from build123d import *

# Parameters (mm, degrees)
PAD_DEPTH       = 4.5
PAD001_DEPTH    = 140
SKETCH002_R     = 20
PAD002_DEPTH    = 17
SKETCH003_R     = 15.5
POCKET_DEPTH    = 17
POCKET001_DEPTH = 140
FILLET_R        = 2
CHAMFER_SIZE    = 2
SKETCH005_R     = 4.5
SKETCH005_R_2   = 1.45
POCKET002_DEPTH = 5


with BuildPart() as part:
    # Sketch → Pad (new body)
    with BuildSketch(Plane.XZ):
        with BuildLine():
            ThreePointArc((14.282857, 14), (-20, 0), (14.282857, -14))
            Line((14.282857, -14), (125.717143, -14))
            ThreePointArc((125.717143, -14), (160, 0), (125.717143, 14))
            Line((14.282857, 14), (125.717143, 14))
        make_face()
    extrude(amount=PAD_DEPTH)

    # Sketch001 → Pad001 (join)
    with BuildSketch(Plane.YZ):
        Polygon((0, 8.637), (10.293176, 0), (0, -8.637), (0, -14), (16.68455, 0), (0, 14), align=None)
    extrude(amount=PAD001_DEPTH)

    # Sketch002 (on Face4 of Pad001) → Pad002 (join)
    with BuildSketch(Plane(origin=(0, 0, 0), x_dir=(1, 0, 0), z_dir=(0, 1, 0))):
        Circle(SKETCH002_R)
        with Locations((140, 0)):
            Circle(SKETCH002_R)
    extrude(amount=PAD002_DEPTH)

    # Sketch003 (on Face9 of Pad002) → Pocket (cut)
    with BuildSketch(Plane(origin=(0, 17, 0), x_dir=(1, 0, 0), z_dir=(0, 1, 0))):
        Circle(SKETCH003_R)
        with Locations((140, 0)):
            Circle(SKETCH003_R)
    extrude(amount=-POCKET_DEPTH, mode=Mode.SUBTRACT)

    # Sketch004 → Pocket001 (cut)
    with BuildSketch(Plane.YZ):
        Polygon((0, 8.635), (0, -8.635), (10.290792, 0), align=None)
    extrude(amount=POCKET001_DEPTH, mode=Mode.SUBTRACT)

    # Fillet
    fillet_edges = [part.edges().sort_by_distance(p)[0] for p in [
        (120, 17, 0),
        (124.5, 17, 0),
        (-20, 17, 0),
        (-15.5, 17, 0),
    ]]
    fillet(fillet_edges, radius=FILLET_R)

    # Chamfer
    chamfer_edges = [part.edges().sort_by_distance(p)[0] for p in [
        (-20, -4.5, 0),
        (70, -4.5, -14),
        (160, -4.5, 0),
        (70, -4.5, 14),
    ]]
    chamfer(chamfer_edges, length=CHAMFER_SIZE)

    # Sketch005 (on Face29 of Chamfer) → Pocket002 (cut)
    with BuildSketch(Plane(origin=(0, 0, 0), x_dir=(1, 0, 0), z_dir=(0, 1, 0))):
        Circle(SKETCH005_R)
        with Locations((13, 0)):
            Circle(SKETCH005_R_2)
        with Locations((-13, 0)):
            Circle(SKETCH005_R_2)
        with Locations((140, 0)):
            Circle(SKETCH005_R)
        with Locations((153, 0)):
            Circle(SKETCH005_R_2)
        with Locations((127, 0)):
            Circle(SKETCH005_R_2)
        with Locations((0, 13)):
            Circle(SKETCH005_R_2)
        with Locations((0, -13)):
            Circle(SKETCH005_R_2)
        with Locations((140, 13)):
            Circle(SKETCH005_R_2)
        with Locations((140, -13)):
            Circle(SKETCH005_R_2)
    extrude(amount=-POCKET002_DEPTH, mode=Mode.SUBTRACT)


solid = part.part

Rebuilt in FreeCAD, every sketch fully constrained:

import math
import FreeCAD as App
import Part
import Sketcher
from FreeCAD import Vector
Q = App.Units.Quantity


def edges_at(feature, points):
    """Names of the edges that pass closest to the given points."""
    edges = feature.Shape.Edges
    near = lambda p: min(range(len(edges)), key=lambda i: edges[i].distToShape(Part.Vertex(*p))[0])
    return sorted({f"Edge{near(p) + 1}" for p in points})

doc = App.newDocument("Part")
body = doc.addObject("PartDesign::Body", "Body")

sketch1 = body.newObject("Sketcher::SketchObject", "Sketch")
sketch1.AttachmentSupport = (doc.getObject("XZ_Plane"), [""])
sketch1.MapMode = "FlatFace"
sketch1.addGeometry(Part.ArcOfCircle(Part.Circle(Vector(0, 0, 0), Vector(0, 0, 1), 20), math.radians(44.427004), math.radians(315.572996)), False)
sketch1.addGeometry(Part.LineSegment(Vector(14.282857, -14, 0), Vector(125.717143, -14, 0)), False)
sketch1.addGeometry(Part.ArcOfCircle(Part.Circle(Vector(140, 0, 0), Vector(0, 0, 1), 20), math.radians(-135.572996), math.radians(135.572996)), False)
sketch1.addGeometry(Part.LineSegment(Vector(125.717143, 14, 0), Vector(14.282857, 14, 0)), False)
sketch1.addConstraint(Sketcher.Constraint("Coincident", 0, 2, 1, 1))
sketch1.addConstraint(Sketcher.Constraint("Coincident", 1, 2, 2, 1))
sketch1.addConstraint(Sketcher.Constraint("Coincident", 2, 2, 3, 1))
sketch1.addConstraint(Sketcher.Constraint("Coincident", 3, 2, 0, 1))
sketch1.addConstraint(Sketcher.Constraint("Horizontal", 1))
sketch1.addConstraint(Sketcher.Constraint("Horizontal", 3))
sketch1.addConstraint(Sketcher.Constraint("Coincident", 0, 3, -1, 1))
sketch1.addConstraint(Sketcher.Constraint("Equal", 0, 2))
sketch1.addConstraint(Sketcher.Constraint("Symmetric", 1, 2, 2, 2, -1))
sketch1.addConstraint(Sketcher.Constraint("Radius", 0, Q("20 mm")))
sketch1.addConstraint(Sketcher.Constraint("DistanceX", -1, 1, 2, 3, Q("140 mm")))
sketch1.addConstraint(Sketcher.Constraint("DistanceY", 0, 2, -1, 1, Q("14 mm")))
pad1 = body.newObject("PartDesign::Pad", "Pad")
pad1.Profile = sketch1
pad1.Length = 4.5

sketch2 = body.newObject("Sketcher::SketchObject", "Sketch001")
sketch2.AttachmentSupport = (doc.getObject("YZ_Plane"), [""])
sketch2.MapMode = "FlatFace"
sketch2.addGeometry(Part.LineSegment(Vector(0, 8.637, 0), Vector(10.293176, 0, 0)), False)
sketch2.addGeometry(Part.LineSegment(Vector(10.293176, 0, 0), Vector(0, -8.637, 0)), False)
sketch2.addGeometry(Part.LineSegment(Vector(0, -8.637, 0), Vector(0, -14, 0)), False)
sketch2.addGeometry(Part.LineSegment(Vector(0, -14, 0), Vector(16.68455, 0, 0)), False)
sketch2.addGeometry(Part.LineSegment(Vector(16.68455, 0, 0), Vector(0, 14, 0)), False)
sketch2.addGeometry(Part.LineSegment(Vector(0, 14, 0), Vector(0, 8.637, 0)), False)
sketch2.addConstraint(Sketcher.Constraint("Coincident", 0, 2, 1, 1))
sketch2.addConstraint(Sketcher.Constraint("Coincident", 1, 2, 2, 1))
sketch2.addConstraint(Sketcher.Constraint("Coincident", 2, 2, 3, 1))
sketch2.addConstraint(Sketcher.Constraint("Coincident", 3, 2, 4, 1))
sketch2.addConstraint(Sketcher.Constraint("Coincident", 4, 2, 5, 1))
sketch2.addConstraint(Sketcher.Constraint("Coincident", 5, 2, 0, 1))
sketch2.addConstraint(Sketcher.Constraint("Vertical", 2))
sketch2.addConstraint(Sketcher.Constraint("Vertical", 5))
sketch2.addConstraint(Sketcher.Constraint("Symmetric", 2, 2, 4, 2, -1, 1))
sketch2.addConstraint(Sketcher.Constraint("Symmetric", 1, 2, 5, 2, -1))
sketch2.addConstraint(Sketcher.Constraint("PointOnObject", 0, 2, -1))
sketch2.addConstraint(Sketcher.Constraint("PointOnObject", 3, 2, -1))
sketch2.addConstraint(Sketcher.Constraint("Parallel", 1, 3))
sketch2.addConstraint(Sketcher.Constraint("Angle", 0, Q("-39.999999 deg")))
sketch2.addConstraint(Sketcher.Constraint("DistanceY", 2, 2, -1, 1, Q("14 mm")))
sketch2.addConstraint(Sketcher.Constraint("DistanceY", 2, 2, 2, 1, Q("5.363 mm")))
pad2 = body.newObject("PartDesign::Pad", "Pad001")
pad2.Profile = sketch2
pad2.Length = 140

sketch3 = body.newObject("Sketcher::SketchObject", "Sketch002")
sketch3.AttachmentSupport = (doc.getObject("XZ_Plane"), [""])
sketch3.MapMode = "FlatFace"
sketch3.addGeometry(Part.Circle(Vector(0, 0, 0), Vector(0, 0, 1), 20), False)
sketch3.addGeometry(Part.Circle(Vector(140, 0, 0), Vector(0, 0, 1), 20), False)
sketch3.addConstraint(Sketcher.Constraint("Coincident", 0, 3, -1, 1))
sketch3.addConstraint(Sketcher.Constraint("Equal", 0, 1))
sketch3.addConstraint(Sketcher.Constraint("PointOnObject", 1, 3, -1))
sketch3.addConstraint(Sketcher.Constraint("Diameter", 0, Q("40 mm")))
sketch3.addConstraint(Sketcher.Constraint("DistanceX", -1, 1, 1, 3, Q("140 mm")))
pad3 = body.newObject("PartDesign::Pad", "Pad002")
pad3.Profile = sketch3
pad3.Length = 17
pad3.Reversed = True

sketch4 = body.newObject("Sketcher::SketchObject", "Sketch003")
sketch4.AttachmentSupport = (doc.getObject("XZ_Plane"), [""])
sketch4.MapMode = "FlatFace"
sketch4.AttachmentOffset = App.Placement(Vector(0, 0, -17), App.Rotation())
sketch4.addGeometry(Part.Circle(Vector(0, 0, 0), Vector(0, 0, 1), 15.5), False)
sketch4.addGeometry(Part.Circle(Vector(140, 0, 0), Vector(0, 0, 1), 15.5), False)
sketch4.addConstraint(Sketcher.Constraint("Coincident", 0, 3, -1, 1))
sketch4.addConstraint(Sketcher.Constraint("Equal", 0, 1))
sketch4.addConstraint(Sketcher.Constraint("PointOnObject", 1, 3, -1))
sketch4.addConstraint(Sketcher.Constraint("Diameter", 0, Q("31 mm")))
sketch4.addConstraint(Sketcher.Constraint("DistanceX", -1, 1, 1, 3, Q("140 mm")))
pocket1 = body.newObject("PartDesign::Pocket", "Pocket")
pocket1.Profile = sketch4
pocket1.Length = 17
pocket1.Reversed = True

sketch5 = body.newObject("Sketcher::SketchObject", "Sketch004")
sketch5.AttachmentSupport = (doc.getObject("YZ_Plane"), [""])
sketch5.MapMode = "FlatFace"
sketch5.addGeometry(Part.LineSegment(Vector(0, 8.635, 0), Vector(0, -8.635, 0)), False)
sketch5.addGeometry(Part.LineSegment(Vector(0, -8.635, 0), Vector(10.290792, 0, 0)), False)
sketch5.addGeometry(Part.LineSegment(Vector(10.290792, 0, 0), Vector(0, 8.635, 0)), False)
sketch5.addConstraint(Sketcher.Constraint("Coincident", 0, 2, 1, 1))
sketch5.addConstraint(Sketcher.Constraint("Coincident", 1, 2, 2, 1))
sketch5.addConstraint(Sketcher.Constraint("Coincident", 2, 2, 0, 1))
sketch5.addConstraint(Sketcher.Constraint("Vertical", 0))
sketch5.addConstraint(Sketcher.Constraint("Symmetric", 0, 2, 2, 2, -1, 1))
sketch5.addConstraint(Sketcher.Constraint("PointOnObject", 1, 2, -1))
sketch5.addConstraint(Sketcher.Constraint("Angle", 1, Q("40.000001 deg")))
sketch5.addConstraint(Sketcher.Constraint("DistanceY", 0, 2, 0, 1, Q("17.27 mm")))
pocket2 = body.newObject("PartDesign::Pocket", "Pocket001")
pocket2.Profile = sketch5
pocket2.Length = 140
pocket2.Reversed = True
doc.recompute()

fillet = body.newObject("PartDesign::Fillet", "Fillet")
fillet.Base = (pocket2, edges_at(pocket2, [
    (120, 17, 0),
    (124.5, 17, 0),
    (-20, 17, 0),
    (-15.5, 17, 0),
]))
fillet.Radius = 2
doc.recompute()

chamfer = body.newObject("PartDesign::Chamfer", "Chamfer")
chamfer.Base = (fillet, edges_at(fillet, [
    (-20, -4.5, 0),
    (70, -4.5, -14),
    (160, -4.5, 0),
    (70, -4.5, 14),
]))
chamfer.Size = 2

sketch6 = body.newObject("Sketcher::SketchObject", "Sketch005")
sketch6.AttachmentSupport = (doc.getObject("XZ_Plane"), [""])
sketch6.MapMode = "FlatFace"
sketch6.addGeometry(Part.Circle(Vector(0, 0, 0), Vector(0, 0, 1), 4.5), False)
sketch6.addGeometry(Part.Circle(Vector(13, 0, 0), Vector(0, 0, 1), 1.45), False)
sketch6.addGeometry(Part.Circle(Vector(-13, 0, 0), Vector(0, 0, 1), 1.45), False)
sketch6.addGeometry(Part.Circle(Vector(140, 0, 0), Vector(0, 0, 1), 4.5), False)
sketch6.addGeometry(Part.Circle(Vector(153, 0, 0), Vector(0, 0, 1), 1.45), False)
sketch6.addGeometry(Part.Circle(Vector(127, 0, 0), Vector(0, 0, 1), 1.45), False)
sketch6.addGeometry(Part.Circle(Vector(0, -13, 0), Vector(0, 0, 1), 1.45), False)
sketch6.addGeometry(Part.Circle(Vector(0, 13, 0), Vector(0, 0, 1), 1.45), False)
sketch6.addGeometry(Part.Circle(Vector(140, -13, 0), Vector(0, 0, 1), 1.45), False)
sketch6.addGeometry(Part.Circle(Vector(140, 13, 0), Vector(0, 0, 1), 1.45), False)
sketch6.addConstraint(Sketcher.Constraint("Coincident", 0, 3, -1, 1))
sketch6.addConstraint(Sketcher.Constraint("Equal", 1, 2))
sketch6.addConstraint(Sketcher.Constraint("Equal", 0, 3))
sketch6.addConstraint(Sketcher.Constraint("Equal", 2, 4))
sketch6.addConstraint(Sketcher.Constraint("Equal", 4, 5))
sketch6.addConstraint(Sketcher.Constraint("Equal", 5, 6))
sketch6.addConstraint(Sketcher.Constraint("Equal", 6, 7))
sketch6.addConstraint(Sketcher.Constraint("Equal", 7, 8))
sketch6.addConstraint(Sketcher.Constraint("Equal", 8, 9))
sketch6.addConstraint(Sketcher.Constraint("Symmetric", 1, 3, 2, 3, -1, 1))
sketch6.addConstraint(Sketcher.Constraint("Symmetric", 6, 3, 7, 3, -1, 1))
sketch6.addConstraint(Sketcher.Constraint("Symmetric", 8, 3, 9, 3, -1))
sketch6.addConstraint(Sketcher.Constraint("PointOnObject", 1, 3, -1))
sketch6.addConstraint(Sketcher.Constraint("PointOnObject", 3, 3, -1))
sketch6.addConstraint(Sketcher.Constraint("PointOnObject", 4, 3, -1))
sketch6.addConstraint(Sketcher.Constraint("PointOnObject", 5, 3, -1))
sketch6.addConstraint(Sketcher.Constraint("PointOnObject", 6, 3, -2))
sketch6.addConstraint(Sketcher.Constraint("Horizontal", 6, 3, 8, 3))
sketch6.addConstraint(Sketcher.Constraint("Vertical", 3, 3, 8, 3))
sketch6.addConstraint(Sketcher.Constraint("Diameter", 0, Q("9 mm")))
sketch6.addConstraint(Sketcher.Constraint("Diameter", 1, Q("2.9 mm")))
sketch6.addConstraint(Sketcher.Constraint("DistanceX", -1, 1, 1, 3, Q("13 mm")))
sketch6.addConstraint(Sketcher.Constraint("DistanceX", -1, 1, 3, 3, Q("140 mm")))
sketch6.addConstraint(Sketcher.Constraint("DistanceX", -1, 1, 4, 3, Q("153 mm")))
sketch6.addConstraint(Sketcher.Constraint("DistanceX", -1, 1, 5, 3, Q("127 mm")))
sketch6.addConstraint(Sketcher.Constraint("DistanceY", 6, 3, -1, 1, Q("13 mm")))
pocket3 = body.newObject("PartDesign::Pocket", "Pocket002")
pocket3.Profile = sketch6
pocket3.Length = 5
pocket3.Reversed = True

doc.recompute()
